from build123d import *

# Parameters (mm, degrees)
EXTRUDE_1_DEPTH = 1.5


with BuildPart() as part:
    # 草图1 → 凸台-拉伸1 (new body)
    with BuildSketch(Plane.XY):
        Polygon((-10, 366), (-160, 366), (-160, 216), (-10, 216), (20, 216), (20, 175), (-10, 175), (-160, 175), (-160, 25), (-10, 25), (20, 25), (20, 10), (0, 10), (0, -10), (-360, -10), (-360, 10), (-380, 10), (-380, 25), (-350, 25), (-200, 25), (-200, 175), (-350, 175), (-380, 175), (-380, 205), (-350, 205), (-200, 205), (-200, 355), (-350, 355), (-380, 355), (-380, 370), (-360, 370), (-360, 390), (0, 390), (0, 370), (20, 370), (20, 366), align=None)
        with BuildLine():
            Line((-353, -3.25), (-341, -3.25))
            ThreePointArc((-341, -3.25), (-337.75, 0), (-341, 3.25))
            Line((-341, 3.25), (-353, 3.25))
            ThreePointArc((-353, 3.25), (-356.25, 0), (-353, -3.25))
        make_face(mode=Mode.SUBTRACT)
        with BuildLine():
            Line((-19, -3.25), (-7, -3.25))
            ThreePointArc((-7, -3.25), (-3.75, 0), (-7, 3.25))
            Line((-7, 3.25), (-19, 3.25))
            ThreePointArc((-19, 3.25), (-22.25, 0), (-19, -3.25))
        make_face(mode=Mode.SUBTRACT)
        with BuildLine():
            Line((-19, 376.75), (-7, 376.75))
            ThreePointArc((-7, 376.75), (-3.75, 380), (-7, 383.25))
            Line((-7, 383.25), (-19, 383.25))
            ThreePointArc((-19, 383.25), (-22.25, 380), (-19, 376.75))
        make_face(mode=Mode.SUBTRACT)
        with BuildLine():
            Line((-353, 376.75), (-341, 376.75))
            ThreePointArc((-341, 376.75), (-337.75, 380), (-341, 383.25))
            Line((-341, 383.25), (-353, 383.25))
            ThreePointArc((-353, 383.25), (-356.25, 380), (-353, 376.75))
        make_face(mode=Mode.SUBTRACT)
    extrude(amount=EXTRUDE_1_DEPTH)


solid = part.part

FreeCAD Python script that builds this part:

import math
import FreeCAD as App
import Part
import Sketcher

V = App.Vector


def add_polygon(sketch, points):
    """Adds a closed chain of lines whose ends are joined by coincident constraints."""
    first, n = sketch.GeometryCount, len(points)
    for a, b in zip(points, points[1:] + points[:1]):
        sketch.addGeometry(Part.LineSegment(App.Vector(*a, 0), App.Vector(*b, 0)), False)
    for i in range(n):
        sketch.addConstraint(Sketcher.Constraint("Coincident", first + i, 2, first + (i + 1) % n, 1))

doc = App.newDocument("Part")
params = doc.addObject("Spreadsheet::Sheet", "Params")
for row, (alias, value) in enumerate([
    ("sketch1_width", "180 mm"),
    ("sketch1_width2", "20 mm"),
    ("sketch1_width3", "360 mm"),
    ("sketch1_width4", "12 mm"),
    ("sketch1_height", "4 mm"),
    ("pad1_length", "1.5 mm"),
], start=1):
    params.set(f"A{row}", alias)
    params.set(f"B{row}", "=" + value)
    params.setAlias(f"B{row}", alias)

body = doc.addObject("PartDesign::Body", "Body")

# Sketch on XY plane
sketch1 = doc.addObject("Sketcher::SketchObject", "Sketch")
body.addObject(sketch1)
sketch1.AttachmentSupport = (doc.XY_Plane, [""])
sketch1.MapMode = "FlatFace"
add_polygon(sketch1, [(-160, 366), (20, 366), (20, 370), (0, 370), (0, 390), (-360, 390), (-360, 370), (-380, 370), (-380, 355), (-200, 355), (-200, 205), (-380, 205), (-380, 175), (-200, 175), (-200, 25), (-380, 25), (-380, 10), (-360, 10), (-360, -10), (0, -10), (0, 10), (20, 10), (20, 25), (-160, 25), (-160, 175), (20, 175), (20, 216), (-160, 216)])  # lines 0-27
sketch1.addGeometry(Part.ArcOfCircle(Part.Circle(V(-19, 0, 0), V(0, 0, 1), 3.25), math.radians(90), math.radians(270)), False)  # 28
sketch1.addGeometry(Part.LineSegment(V(-19, 3.25, 0), V(-7, 3.25, 0)), False)  # 29
sketch1.addGeometry(Part.ArcOfCircle(Part.Circle(V(-7, 0, 0), V(0, 0, 1), 3.25), math.radians(-90), math.radians(90)), False)  # 30
sketch1.addGeometry(Part.LineSegment(V(-7, -3.25, 0), V(-19, -3.25, 0)), False)  # 31
sketch1.addGeometry(Part.ArcOfCircle(Part.Circle(V(-353, 0, 0), V(0, 0, 1), 3.25), math.radians(90), math.radians(270)), False)  # 32
sketch1.addGeometry(Part.LineSegment(V(-353, 3.25, 0), V(-341, 3.25, 0)), False)  # 33
sketch1.addGeometry(Part.ArcOfCircle(Part.Circle(V(-341, 0, 0), V(0, 0, 1), 3.25), math.radians(-90), math.radians(90)), False)  # 34
sketch1.addGeometry(Part.LineSegment(V(-341, -3.25, 0), V(-353, -3.25, 0)), False)  # 35
sketch1.addGeometry(Part.ArcOfCircle(Part.Circle(V(-19, 380, 0), V(0, 0, 1), 3.25), math.radians(90), math.radians(270)), False)  # 36
sketch1.addGeometry(Part.LineSegment(V(-19, 383.25, 0), V(-7, 383.25, 0)), False)  # 37
sketch1.addGeometry(Part.ArcOfCircle(Part.Circle(V(-7, 380, 0), V(0, 0, 1), 3.25), math.radians(-90), math.radians(90)), False)  # 38
sketch1.addGeometry(Part.LineSegment(V(-7, 376.75, 0), V(-19, 376.75, 0)), False)  # 39
sketch1.addGeometry(Part.ArcOfCircle(Part.Circle(V(-353, 380, 0), V(0, 0, 1), 3.25), math.radians(90), math.radians(270)), False)  # 40
sketch1.addGeometry(Part.LineSegment(V(-353, 383.25, 0), V(-341, 383.25, 0)), False)  # 41
sketch1.addGeometry(Part.ArcOfCircle(Part.Circle(V(-341, 380, 0), V(0, 0, 1), 3.25), math.radians(-90), math.radians(90)), False)  # 42
sketch1.addGeometry(Part.LineSegment(V(-341, 376.75, 0), V(-353, 376.75, 0)), False)  # 43
sketch1.addConstraint(Sketcher.Constraint("Tangent", 28, 1, 29, 1))
sketch1.addConstraint(Sketcher.Constraint("Tangent", 29, 2, 30, 2))
sketch1.addConstraint(Sketcher.Constraint("Tangent", 30, 1, 31, 1))
sketch1.addConstraint(Sketcher.Constraint("Tangent", 31, 2, 28, 2))
sketch1.addConstraint(Sketcher.Constraint("Tangent", 32, 1, 33, 1))
sketch1.addConstraint(Sketcher.Constraint("Tangent", 33, 2, 34, 2))
sketch1.addConstraint(Sketcher.Constraint("Tangent", 34, 1, 35, 1))
sketch1.addConstraint(Sketcher.Constraint("Tangent", 35, 2, 32, 2))
sketch1.addConstraint(Sketcher.Constraint("Tangent", 36, 1, 37, 1))
sketch1.addConstraint(Sketcher.Constraint("Tangent", 37, 2, 38, 2))
sketch1.addConstraint(Sketcher.Constraint("Tangent", 38, 1, 39, 1))
sketch1.addConstraint(Sketcher.Constraint("Tangent", 39, 2, 36, 2))
sketch1.addConstraint(Sketcher.Constraint("Tangent", 40, 1, 41, 1))
sketch1.addConstraint(Sketcher.Constraint("Tangent", 41, 2, 42, 2))
sketch1.addConstraint(Sketcher.Constraint("Tangent", 42, 1, 43, 1))
sketch1.addConstraint(Sketcher.Constraint("Tangent", 43, 2, 40, 2))
sketch1.addConstraint(Sketcher.Constraint("Horizontal", 0))
sketch1.addConstraint(Sketcher.Constraint("Vertical", 1))
sketch1.addConstraint(Sketcher.Constraint("Horizontal", 2))
sketch1.addConstraint(Sketcher.Constraint("Vertical", 3))
sketch1.addConstraint(Sketcher.Constraint("Horizontal", 4))
sketch1.addConstraint(Sketcher.Constraint("Vertical", 5))
sketch1.addConstraint(Sketcher.Constraint("Horizontal", 6))
sketch1.addConstraint(Sketcher.Constraint("Vertical", 7))
sketch1.addConstraint(Sketcher.Constraint("Horizontal", 8))
sketch1.addConstraint(Sketcher.Constraint("Vertical", 9))
sketch1.addConstraint(Sketcher.Constraint("Horizontal", 10))
sketch1.addConstraint(Sketcher.Constraint("Vertical", 11))
sketch1.addConstraint(Sketcher.Constraint("Horizontal", 12))
sketch1.addConstraint(Sketcher.Constraint("Vertical", 13))
sketch1.addConstraint(Sketcher.Constraint("Horizontal", 14))
sketch1.addConstraint(Sketcher.Constraint("Vertical", 15))
sketch1.addConstraint(Sketcher.Constraint("Horizontal", 16))
sketch1.addConstraint(Sketcher.Constraint("Vertical", 17))
sketch1.addConstraint(Sketcher.Constraint("Horizontal", 18))
sketch1.addConstraint(Sketcher.Constraint("Vertical", 19))
sketch1.addConstraint(Sketcher.Constraint("Horizontal", 20))
sketch1.addConstraint(Sketcher.Constraint("Vertical", 21))
sketch1.addConstraint(Sketcher.Constraint("Horizontal", 22))
sketch1.addConstraint(Sketcher.Constraint("Vertical", 23))
sketch1.addConstraint(Sketcher.Constraint("Horizontal", 24))
sketch1.addConstraint(Sketcher.Constraint("Vertical", 25))
sketch1.addConstraint(Sketcher.Constraint("Horizontal", 26))
sketch1.addConstraint(Sketcher.Constraint("Vertical", 27))
sketch1.addConstraint(Sketcher.Constraint("Horizontal", 29))
sketch1.addConstraint(Sketcher.Constraint("Horizontal", 31))
sketch1.addConstraint(Sketcher.Constraint("Horizontal", 33))
sketch1.addConstraint(Sketcher.Constraint("Horizontal", 35))
sketch1.addConstraint(Sketcher.Constraint("Horizontal", 37))
sketch1.addConstraint(Sketcher.Constraint("Horizontal", 39))
sketch1.addConstraint(Sketcher.Constraint("Horizontal", 41))
sketch1.addConstraint(Sketcher.Constraint("Horizontal", 43))
sketch1.addConstraint(Sketcher.Constraint("Equal", 30, 32))
sketch1.addConstraint(Sketcher.Constraint("Equal", 34, 36))
sketch1.addConstraint(Sketcher.Constraint("Equal", 38, 40))
sketch1.addConstraint(Sketcher.Constraint("Symmetric", 18, 2, 19, 2, -1, 1))
sketch1.addConstraint(Sketcher.Constraint("PointOnObject", 28, 3, -1))
sketch1.addConstraint(Sketcher.Constraint("PointOnObject", 32, 3, -1))
sketch1.addConstraint(Sketcher.Constraint("PointOnObject", 2, 2, -2))
sketch1.addConstraint(Sketcher.Constraint("Horizontal", 38, 3, 40, 3))
sketch1.addConstraint(Sketcher.Constraint("Horizontal", 2, 2, 5, 2))
sketch1.addConstraint(Sketcher.Constraint("Horizontal", 16, 2, 19, 2))
sketch1.addConstraint(Sketcher.Constraint("Horizontal", 14, 2, 21, 2))
sketch1.addConstraint(Sketcher.Constraint("Horizontal", 12, 2, 23, 2))
sketch1.addConstraint(Sketcher.Constraint("Vertical", 28, 3, 36, 3))
sketch1.addConstraint(Sketcher.Constraint("Vertical", 30, 3, 38, 3))
sketch1.addConstraint(Sketcher.Constraint("Vertical", 32, 3, 40, 3))
sketch1.addConstraint(Sketcher.Constraint("Vertical", 34, 3, 42, 3))
sketch1.addConstraint(Sketcher.Constraint("Vertical", 7, 2, 10, 2))
sketch1.addConstraint(Sketcher.Constraint("Vertical", 9, 2, 12, 2))
sketch1.addConstraint(Sketcher.Constraint("Vertical", 11, 2, 14, 2))
sketch1.addConstraint(Sketcher.Constraint("Vertical", 5, 2, 16, 2))
sketch1.addConstraint(Sketcher.Constraint("Vertical", 1, 2, 20, 2))
sketch1.addConstraint(Sketcher.Constraint("Vertical", 21, 2, 24, 2))
sketch1.addConstraint(Sketcher.Constraint("Vertical", 23, 2, 26, 2))
sketch1.addConstraint(Sketcher.Constraint("Equal", 2, 6))
sketch1.addConstraint(Sketcher.Constraint("Equal", 0, 8))
sketch1.addConstraint(Sketcher.Constraint("Equal", 31, 33))
sketch1.addConstraint(Sketcher.Constraint("Equal", 20, 3))
sketch1.addConstraint(Sketcher.Constraint("Equal", 9, 13))
sketch1.addConstraint(Sketcher.Constraint("Equal", 7, 15))
sketch1.addConstraint(Sketcher.Constraint("Equal", 5, 17))
sketch1.addConstraint(Sketcher.Constraint("Equal", 23, 27))
sketch1.addConstraint(Sketcher.Constraint("DistanceX", 0, 1, 0, 2, 180.0))
sketch1.addConstraint(Sketcher.Constraint("DistanceX", 2, 2, 2, 1, 20.0))
sketch1.addConstraint(Sketcher.Constraint("DistanceX", 4, 2, 4, 1, 360.0))
sketch1.addConstraint(Sketcher.Constraint("DistanceX", 29, 1, 29, 2, 12.0))
sketch1.addConstraint(Sketcher.Constraint("DistanceY", 1, 1, 1, 2, 4.0))
sketch1.addConstraint(Sketcher.Constraint("DistanceY", 7, 2, 7, 1, 15.0))
sketch1.addConstraint(Sketcher.Constraint("DistanceY", 9, 2, 9, 1, 150.0))
sketch1.addConstraint(Sketcher.Constraint("DistanceY", 11, 2, 11, 1, 30.0))
sketch1.addConstraint(Sketcher.Constraint("Radius", 28, 3.25))
sketch1.addConstraint(Sketcher.Constraint("DistanceX", 28, 3, -1, 1, 19.0))
sketch1.addConstraint(Sketcher.Constraint("DistanceX", 32, 3, -1, 1, 353.0))
sketch1.addConstraint(Sketcher.Constraint("DistanceY", -1, 1, 36, 3, 380.0))
sketch1.setExpression("Constraints[111]", "Params.sketch1_width")
sketch1.setExpression("Constraints[112]", "Params.sketch1_width2")
sketch1.setExpression("Constraints[113]", "Params.sketch1_width3")
sketch1.setExpression("Constraints[114]", "Params.sketch1_width4")
sketch1.setExpression("Constraints[115]", "Params.sketch1_height")
pad1 = doc.addObject("PartDesign::Pad", "Pad")
body.addObject(pad1)
pad1.Profile = sketch1
pad1.setExpression("Length", "Params.pad1_length")

doc.recompute()
